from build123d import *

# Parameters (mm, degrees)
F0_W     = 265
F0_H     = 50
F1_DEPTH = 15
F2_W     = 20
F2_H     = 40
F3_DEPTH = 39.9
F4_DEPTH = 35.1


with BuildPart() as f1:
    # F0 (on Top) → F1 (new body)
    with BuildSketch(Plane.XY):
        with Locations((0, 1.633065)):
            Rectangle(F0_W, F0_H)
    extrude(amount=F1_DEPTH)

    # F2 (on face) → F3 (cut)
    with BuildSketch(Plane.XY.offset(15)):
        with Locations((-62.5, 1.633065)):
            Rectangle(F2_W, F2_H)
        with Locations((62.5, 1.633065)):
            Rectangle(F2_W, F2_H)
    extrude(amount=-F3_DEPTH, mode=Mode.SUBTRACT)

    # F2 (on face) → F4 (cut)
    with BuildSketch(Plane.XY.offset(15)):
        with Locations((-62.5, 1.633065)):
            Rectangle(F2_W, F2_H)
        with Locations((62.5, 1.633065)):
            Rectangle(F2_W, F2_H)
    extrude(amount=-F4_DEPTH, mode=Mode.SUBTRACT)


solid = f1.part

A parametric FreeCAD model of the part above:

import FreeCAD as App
import Part
import Sketcher


def add_polygon(sketch, points):
    """Adds a closed chain of lines whose ends are joined by coincident constraints."""
    first, n = sketch.GeometryCount, len(points)
    for a, b in zip(points, points[1:] + points[:1]):
        sketch.addGeometry(Part.LineSegment(App.Vector(*a, 0), App.Vector(*b, 0)), False)
    for i in range(n):
        sketch.addConstraint(Sketcher.Constraint("Coincident", first + i, 2, first + (i + 1) % n, 1))

doc = App.newDocument("Part")
body = doc.addObject("PartDesign::Body", "Body")

# Sketch on XY plane
sketch1 = body.newObject("Sketcher::SketchObject", "Sketch")
sketch1.AttachmentSupport = (doc.getObject("XY_Plane"), [""])
sketch1.MapMode = "FlatFace"
add_polygon(sketch1, [(-132, 27), (-132, -23), (132, -23), (132, 27)])  # lines 0-3
sketch1.addConstraint([
    Sketcher.Constraint("Vertical", 0),
    Sketcher.Constraint("Horizontal", 1),
    Sketcher.Constraint("Vertical", 2),
    Sketcher.Constraint("Horizontal", 3),
    Sketcher.Constraint("DistanceX", 1, 1, 1, 2, 265.0),
    Sketcher.Constraint("DistanceY", 0, 2, 0, 1, 50.0),
    Sketcher.Constraint("DistanceX", 0, 2, -1, 1, 132.5),
    Sketcher.Constraint("DistanceY", 0, 2, -1, 1, 23.366935),
])
pad1 = body.newObject("PartDesign::Pad", "Pad")
pad1.Profile = sketch1
pad1.Length = 15

# Sketch on XY plane
sketch2 = body.newObject("Sketcher::SketchObject", "Sketch001")
sketch2.AttachmentSupport = (doc.getObject("XY_Plane"), [""])
sketch2.MapMode = "FlatFace"
sketch2.AttachmentOffset = App.Placement(App.Vector(0, 0, 15), App.Rotation())
add_polygon(sketch2, [(-72, 22), (-72, -18), (-52, -18), (-52, 22)])  # lines 0-3
add_polygon(sketch2, [(52, 22), (52, -18), (72, -18), (72, 22)])  # lines 4-7
sketch2.addConstraint([
    Sketcher.Constraint("Vertical", 0),
    Sketcher.Constraint("Horizontal", 1),
    Sketcher.Constraint("Vertical", 2),
    Sketcher.Constraint("Horizontal", 3),
    Sketcher.Constraint("Vertical", 4),
    Sketcher.Constraint("Horizontal", 5),
    Sketcher.Constraint("Vertical", 6),
    Sketcher.Constraint("Horizontal", 7),
    Sketcher.Constraint("Symmetric", 1, 2, 4, 2, -2),
    Sketcher.Constraint("Symmetric", 3, 2, 6, 2, -2),
    Sketcher.Constraint("DistanceX", 1, 1, 1, 2, 20.0),
    Sketcher.Constraint("DistanceY", 0, 2, 0, 1, 40.0),
    Sketcher.Constraint("DistanceX", 1, 2, 4, 2, 105.0),
    Sketcher.Constraint("DistanceY", 0, 2, -1, 1, 18.366935),
])
pocket1 = body.newObject("PartDesign::Pocket", "Pocket")
pocket1.Profile = sketch2
pocket1.Length = 39.9

# Sketch on XY plane
sketch3 = body.newObject("Sketcher::SketchObject", "Sketch002")
sketch3.AttachmentSupport = (doc.getObject("XY_Plane"), [""])
sketch3.MapMode = "FlatFace"
sketch3.AttachmentOffset = App.Placement(App.Vector(0, 0, 15), App.Rotation())
add_polygon(sketch3, [(-72, 22), (-72, -18), (-52, -18), (-52, 22)])  # lines 0-3
add_polygon(sketch3, [(52, 22), (52, -18), (72, -18), (72, 22)])  # lines 4-7
sketch3.addConstraint([
    Sketcher.Constraint("Vertical", 0),
    Sketcher.Constraint("Horizontal", 1),
    Sketcher.Constraint("Vertical", 2),
    Sketcher.Constraint("Horizontal", 3),
    Sketcher.Constraint("Vertical", 4),
    Sketcher.Constraint("Horizontal", 5),
    Sketcher.Constraint("Vertical", 6),
    Sketcher.Constraint("Horizontal", 7),
    Sketcher.Constraint("Symmetric", 1, 2, 4, 2, -2),
    Sketcher.Constraint("Symmetric", 3, 2, 6, 2, -2),
    Sketcher.Constraint("DistanceX", 1, 1, 1, 2, 20.0),
    Sketcher.Constraint("DistanceY", 0, 2, 0, 1, 40.0),
    Sketcher.Constraint("DistanceX", 1, 2, 4, 2, 105.0),
    Sketcher.Constraint("DistanceY", 0, 2, -1, 1, 18.366935),
])
pocket2 = body.newObject("PartDesign::Pocket", "Pocket001")
pocket2.Profile = sketch3
pocket2.Length = 35.1

doc.recompute()
